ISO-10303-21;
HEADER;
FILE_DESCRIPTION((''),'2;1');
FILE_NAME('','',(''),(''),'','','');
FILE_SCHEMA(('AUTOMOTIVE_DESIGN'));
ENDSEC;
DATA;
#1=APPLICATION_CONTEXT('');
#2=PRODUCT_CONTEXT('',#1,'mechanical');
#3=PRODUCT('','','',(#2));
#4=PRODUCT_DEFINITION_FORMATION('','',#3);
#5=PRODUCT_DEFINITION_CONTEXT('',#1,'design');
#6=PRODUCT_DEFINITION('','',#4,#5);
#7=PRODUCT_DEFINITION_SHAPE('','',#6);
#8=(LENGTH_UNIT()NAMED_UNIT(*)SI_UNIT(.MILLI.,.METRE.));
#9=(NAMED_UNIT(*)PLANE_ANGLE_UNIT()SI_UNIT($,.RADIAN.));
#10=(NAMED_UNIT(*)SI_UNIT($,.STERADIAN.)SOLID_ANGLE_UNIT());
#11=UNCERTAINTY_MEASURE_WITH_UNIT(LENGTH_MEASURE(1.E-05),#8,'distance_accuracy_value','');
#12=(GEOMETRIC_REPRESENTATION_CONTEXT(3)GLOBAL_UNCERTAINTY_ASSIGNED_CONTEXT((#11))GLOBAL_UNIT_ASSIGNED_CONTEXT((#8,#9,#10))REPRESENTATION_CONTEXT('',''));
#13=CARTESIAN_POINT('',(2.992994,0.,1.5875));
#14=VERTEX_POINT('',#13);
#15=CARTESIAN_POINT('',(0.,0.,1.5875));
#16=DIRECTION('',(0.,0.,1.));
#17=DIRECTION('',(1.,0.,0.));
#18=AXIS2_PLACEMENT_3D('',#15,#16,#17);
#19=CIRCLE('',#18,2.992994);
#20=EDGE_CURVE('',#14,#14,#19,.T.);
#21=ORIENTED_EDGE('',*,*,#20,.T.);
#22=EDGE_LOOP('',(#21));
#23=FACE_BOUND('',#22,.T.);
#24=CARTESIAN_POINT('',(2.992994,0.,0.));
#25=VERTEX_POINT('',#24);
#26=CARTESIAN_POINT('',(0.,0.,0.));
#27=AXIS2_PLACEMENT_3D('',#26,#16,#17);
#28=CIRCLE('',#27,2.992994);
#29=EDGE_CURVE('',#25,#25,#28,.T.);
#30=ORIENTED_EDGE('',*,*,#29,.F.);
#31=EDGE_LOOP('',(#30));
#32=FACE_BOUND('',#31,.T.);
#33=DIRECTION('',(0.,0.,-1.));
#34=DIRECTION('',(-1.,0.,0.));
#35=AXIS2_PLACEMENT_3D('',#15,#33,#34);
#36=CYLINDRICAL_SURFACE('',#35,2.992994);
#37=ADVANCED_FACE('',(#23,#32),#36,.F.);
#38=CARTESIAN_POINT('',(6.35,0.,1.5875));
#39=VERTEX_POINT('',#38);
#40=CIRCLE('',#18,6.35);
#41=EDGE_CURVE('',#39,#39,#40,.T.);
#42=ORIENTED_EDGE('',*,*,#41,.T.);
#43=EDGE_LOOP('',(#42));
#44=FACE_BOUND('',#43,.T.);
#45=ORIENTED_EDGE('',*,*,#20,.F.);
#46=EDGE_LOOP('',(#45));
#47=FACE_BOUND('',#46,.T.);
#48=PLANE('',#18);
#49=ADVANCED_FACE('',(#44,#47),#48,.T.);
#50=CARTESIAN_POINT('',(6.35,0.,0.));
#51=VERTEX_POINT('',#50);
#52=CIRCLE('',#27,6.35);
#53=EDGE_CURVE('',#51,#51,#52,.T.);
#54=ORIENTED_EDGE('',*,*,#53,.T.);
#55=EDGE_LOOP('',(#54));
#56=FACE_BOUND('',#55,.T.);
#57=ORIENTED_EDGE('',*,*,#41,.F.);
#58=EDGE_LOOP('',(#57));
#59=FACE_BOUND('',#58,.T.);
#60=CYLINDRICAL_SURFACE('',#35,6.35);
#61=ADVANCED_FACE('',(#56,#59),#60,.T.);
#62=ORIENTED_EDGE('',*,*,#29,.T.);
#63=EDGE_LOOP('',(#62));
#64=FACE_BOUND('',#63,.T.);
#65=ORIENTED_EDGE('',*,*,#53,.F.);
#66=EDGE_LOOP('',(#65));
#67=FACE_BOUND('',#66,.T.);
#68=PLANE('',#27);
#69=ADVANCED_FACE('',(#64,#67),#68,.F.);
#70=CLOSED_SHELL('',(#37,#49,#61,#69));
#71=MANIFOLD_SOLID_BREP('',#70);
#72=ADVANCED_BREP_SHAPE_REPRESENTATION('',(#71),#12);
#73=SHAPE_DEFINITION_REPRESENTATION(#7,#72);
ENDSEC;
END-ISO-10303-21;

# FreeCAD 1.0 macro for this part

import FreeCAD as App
import Part
import Sketcher

V = App.Vector
Q = App.Units.Quantity

doc = App.newDocument("Part")
params = doc.addObject("Spreadsheet::Sheet", "Params")
for row, (alias, value) in enumerate([
    ("sketch1_diameter", "0.5 in"),
    ("pad1_length", "0.0625 in"),
], start=1):
    params.set(f"A{row}", alias)
    params.set(f"B{row}", "=" + value)
    params.setAlias(f"B{row}", alias)

body = doc.addObject("PartDesign::Body", "Body")

# Sketch on XY plane
sketch1 = body.newObject("Sketcher::SketchObject", "Sketch")
sketch1.AttachmentSupport = (doc.getObject("XY_Plane"), [""])
sketch1.MapMode = "FlatFace"
sketch1.addGeometry(Part.Circle(V(0, 0, 0), V(0, 0, 1), 6.35), False)
sketch1.addGeometry(Part.Circle(V(0, 0, 0), V(0, 0, 1), 2.992994), False)
sketch1.addConstraint(Sketcher.Constraint("Coincident", 0, 3, -1, 1))
sketch1.addConstraint(Sketcher.Constraint("Coincident", 1, 3, -1, 1))
sketch1.addConstraint(Sketcher.Constraint("Diameter", 0, Q("0.5 in")))
sketch1.addConstraint(Sketcher.Constraint("Diameter", 1, Q("5.985988 mm")))
sketch1.setExpression("Constraints[2]", "Params.sketch1_diameter")
pad1 = body.newObject("PartDesign::Pad", "Pad")
pad1.Profile = sketch1
pad1.setExpression("Length", "Params.pad1_length")

doc.recompute()
